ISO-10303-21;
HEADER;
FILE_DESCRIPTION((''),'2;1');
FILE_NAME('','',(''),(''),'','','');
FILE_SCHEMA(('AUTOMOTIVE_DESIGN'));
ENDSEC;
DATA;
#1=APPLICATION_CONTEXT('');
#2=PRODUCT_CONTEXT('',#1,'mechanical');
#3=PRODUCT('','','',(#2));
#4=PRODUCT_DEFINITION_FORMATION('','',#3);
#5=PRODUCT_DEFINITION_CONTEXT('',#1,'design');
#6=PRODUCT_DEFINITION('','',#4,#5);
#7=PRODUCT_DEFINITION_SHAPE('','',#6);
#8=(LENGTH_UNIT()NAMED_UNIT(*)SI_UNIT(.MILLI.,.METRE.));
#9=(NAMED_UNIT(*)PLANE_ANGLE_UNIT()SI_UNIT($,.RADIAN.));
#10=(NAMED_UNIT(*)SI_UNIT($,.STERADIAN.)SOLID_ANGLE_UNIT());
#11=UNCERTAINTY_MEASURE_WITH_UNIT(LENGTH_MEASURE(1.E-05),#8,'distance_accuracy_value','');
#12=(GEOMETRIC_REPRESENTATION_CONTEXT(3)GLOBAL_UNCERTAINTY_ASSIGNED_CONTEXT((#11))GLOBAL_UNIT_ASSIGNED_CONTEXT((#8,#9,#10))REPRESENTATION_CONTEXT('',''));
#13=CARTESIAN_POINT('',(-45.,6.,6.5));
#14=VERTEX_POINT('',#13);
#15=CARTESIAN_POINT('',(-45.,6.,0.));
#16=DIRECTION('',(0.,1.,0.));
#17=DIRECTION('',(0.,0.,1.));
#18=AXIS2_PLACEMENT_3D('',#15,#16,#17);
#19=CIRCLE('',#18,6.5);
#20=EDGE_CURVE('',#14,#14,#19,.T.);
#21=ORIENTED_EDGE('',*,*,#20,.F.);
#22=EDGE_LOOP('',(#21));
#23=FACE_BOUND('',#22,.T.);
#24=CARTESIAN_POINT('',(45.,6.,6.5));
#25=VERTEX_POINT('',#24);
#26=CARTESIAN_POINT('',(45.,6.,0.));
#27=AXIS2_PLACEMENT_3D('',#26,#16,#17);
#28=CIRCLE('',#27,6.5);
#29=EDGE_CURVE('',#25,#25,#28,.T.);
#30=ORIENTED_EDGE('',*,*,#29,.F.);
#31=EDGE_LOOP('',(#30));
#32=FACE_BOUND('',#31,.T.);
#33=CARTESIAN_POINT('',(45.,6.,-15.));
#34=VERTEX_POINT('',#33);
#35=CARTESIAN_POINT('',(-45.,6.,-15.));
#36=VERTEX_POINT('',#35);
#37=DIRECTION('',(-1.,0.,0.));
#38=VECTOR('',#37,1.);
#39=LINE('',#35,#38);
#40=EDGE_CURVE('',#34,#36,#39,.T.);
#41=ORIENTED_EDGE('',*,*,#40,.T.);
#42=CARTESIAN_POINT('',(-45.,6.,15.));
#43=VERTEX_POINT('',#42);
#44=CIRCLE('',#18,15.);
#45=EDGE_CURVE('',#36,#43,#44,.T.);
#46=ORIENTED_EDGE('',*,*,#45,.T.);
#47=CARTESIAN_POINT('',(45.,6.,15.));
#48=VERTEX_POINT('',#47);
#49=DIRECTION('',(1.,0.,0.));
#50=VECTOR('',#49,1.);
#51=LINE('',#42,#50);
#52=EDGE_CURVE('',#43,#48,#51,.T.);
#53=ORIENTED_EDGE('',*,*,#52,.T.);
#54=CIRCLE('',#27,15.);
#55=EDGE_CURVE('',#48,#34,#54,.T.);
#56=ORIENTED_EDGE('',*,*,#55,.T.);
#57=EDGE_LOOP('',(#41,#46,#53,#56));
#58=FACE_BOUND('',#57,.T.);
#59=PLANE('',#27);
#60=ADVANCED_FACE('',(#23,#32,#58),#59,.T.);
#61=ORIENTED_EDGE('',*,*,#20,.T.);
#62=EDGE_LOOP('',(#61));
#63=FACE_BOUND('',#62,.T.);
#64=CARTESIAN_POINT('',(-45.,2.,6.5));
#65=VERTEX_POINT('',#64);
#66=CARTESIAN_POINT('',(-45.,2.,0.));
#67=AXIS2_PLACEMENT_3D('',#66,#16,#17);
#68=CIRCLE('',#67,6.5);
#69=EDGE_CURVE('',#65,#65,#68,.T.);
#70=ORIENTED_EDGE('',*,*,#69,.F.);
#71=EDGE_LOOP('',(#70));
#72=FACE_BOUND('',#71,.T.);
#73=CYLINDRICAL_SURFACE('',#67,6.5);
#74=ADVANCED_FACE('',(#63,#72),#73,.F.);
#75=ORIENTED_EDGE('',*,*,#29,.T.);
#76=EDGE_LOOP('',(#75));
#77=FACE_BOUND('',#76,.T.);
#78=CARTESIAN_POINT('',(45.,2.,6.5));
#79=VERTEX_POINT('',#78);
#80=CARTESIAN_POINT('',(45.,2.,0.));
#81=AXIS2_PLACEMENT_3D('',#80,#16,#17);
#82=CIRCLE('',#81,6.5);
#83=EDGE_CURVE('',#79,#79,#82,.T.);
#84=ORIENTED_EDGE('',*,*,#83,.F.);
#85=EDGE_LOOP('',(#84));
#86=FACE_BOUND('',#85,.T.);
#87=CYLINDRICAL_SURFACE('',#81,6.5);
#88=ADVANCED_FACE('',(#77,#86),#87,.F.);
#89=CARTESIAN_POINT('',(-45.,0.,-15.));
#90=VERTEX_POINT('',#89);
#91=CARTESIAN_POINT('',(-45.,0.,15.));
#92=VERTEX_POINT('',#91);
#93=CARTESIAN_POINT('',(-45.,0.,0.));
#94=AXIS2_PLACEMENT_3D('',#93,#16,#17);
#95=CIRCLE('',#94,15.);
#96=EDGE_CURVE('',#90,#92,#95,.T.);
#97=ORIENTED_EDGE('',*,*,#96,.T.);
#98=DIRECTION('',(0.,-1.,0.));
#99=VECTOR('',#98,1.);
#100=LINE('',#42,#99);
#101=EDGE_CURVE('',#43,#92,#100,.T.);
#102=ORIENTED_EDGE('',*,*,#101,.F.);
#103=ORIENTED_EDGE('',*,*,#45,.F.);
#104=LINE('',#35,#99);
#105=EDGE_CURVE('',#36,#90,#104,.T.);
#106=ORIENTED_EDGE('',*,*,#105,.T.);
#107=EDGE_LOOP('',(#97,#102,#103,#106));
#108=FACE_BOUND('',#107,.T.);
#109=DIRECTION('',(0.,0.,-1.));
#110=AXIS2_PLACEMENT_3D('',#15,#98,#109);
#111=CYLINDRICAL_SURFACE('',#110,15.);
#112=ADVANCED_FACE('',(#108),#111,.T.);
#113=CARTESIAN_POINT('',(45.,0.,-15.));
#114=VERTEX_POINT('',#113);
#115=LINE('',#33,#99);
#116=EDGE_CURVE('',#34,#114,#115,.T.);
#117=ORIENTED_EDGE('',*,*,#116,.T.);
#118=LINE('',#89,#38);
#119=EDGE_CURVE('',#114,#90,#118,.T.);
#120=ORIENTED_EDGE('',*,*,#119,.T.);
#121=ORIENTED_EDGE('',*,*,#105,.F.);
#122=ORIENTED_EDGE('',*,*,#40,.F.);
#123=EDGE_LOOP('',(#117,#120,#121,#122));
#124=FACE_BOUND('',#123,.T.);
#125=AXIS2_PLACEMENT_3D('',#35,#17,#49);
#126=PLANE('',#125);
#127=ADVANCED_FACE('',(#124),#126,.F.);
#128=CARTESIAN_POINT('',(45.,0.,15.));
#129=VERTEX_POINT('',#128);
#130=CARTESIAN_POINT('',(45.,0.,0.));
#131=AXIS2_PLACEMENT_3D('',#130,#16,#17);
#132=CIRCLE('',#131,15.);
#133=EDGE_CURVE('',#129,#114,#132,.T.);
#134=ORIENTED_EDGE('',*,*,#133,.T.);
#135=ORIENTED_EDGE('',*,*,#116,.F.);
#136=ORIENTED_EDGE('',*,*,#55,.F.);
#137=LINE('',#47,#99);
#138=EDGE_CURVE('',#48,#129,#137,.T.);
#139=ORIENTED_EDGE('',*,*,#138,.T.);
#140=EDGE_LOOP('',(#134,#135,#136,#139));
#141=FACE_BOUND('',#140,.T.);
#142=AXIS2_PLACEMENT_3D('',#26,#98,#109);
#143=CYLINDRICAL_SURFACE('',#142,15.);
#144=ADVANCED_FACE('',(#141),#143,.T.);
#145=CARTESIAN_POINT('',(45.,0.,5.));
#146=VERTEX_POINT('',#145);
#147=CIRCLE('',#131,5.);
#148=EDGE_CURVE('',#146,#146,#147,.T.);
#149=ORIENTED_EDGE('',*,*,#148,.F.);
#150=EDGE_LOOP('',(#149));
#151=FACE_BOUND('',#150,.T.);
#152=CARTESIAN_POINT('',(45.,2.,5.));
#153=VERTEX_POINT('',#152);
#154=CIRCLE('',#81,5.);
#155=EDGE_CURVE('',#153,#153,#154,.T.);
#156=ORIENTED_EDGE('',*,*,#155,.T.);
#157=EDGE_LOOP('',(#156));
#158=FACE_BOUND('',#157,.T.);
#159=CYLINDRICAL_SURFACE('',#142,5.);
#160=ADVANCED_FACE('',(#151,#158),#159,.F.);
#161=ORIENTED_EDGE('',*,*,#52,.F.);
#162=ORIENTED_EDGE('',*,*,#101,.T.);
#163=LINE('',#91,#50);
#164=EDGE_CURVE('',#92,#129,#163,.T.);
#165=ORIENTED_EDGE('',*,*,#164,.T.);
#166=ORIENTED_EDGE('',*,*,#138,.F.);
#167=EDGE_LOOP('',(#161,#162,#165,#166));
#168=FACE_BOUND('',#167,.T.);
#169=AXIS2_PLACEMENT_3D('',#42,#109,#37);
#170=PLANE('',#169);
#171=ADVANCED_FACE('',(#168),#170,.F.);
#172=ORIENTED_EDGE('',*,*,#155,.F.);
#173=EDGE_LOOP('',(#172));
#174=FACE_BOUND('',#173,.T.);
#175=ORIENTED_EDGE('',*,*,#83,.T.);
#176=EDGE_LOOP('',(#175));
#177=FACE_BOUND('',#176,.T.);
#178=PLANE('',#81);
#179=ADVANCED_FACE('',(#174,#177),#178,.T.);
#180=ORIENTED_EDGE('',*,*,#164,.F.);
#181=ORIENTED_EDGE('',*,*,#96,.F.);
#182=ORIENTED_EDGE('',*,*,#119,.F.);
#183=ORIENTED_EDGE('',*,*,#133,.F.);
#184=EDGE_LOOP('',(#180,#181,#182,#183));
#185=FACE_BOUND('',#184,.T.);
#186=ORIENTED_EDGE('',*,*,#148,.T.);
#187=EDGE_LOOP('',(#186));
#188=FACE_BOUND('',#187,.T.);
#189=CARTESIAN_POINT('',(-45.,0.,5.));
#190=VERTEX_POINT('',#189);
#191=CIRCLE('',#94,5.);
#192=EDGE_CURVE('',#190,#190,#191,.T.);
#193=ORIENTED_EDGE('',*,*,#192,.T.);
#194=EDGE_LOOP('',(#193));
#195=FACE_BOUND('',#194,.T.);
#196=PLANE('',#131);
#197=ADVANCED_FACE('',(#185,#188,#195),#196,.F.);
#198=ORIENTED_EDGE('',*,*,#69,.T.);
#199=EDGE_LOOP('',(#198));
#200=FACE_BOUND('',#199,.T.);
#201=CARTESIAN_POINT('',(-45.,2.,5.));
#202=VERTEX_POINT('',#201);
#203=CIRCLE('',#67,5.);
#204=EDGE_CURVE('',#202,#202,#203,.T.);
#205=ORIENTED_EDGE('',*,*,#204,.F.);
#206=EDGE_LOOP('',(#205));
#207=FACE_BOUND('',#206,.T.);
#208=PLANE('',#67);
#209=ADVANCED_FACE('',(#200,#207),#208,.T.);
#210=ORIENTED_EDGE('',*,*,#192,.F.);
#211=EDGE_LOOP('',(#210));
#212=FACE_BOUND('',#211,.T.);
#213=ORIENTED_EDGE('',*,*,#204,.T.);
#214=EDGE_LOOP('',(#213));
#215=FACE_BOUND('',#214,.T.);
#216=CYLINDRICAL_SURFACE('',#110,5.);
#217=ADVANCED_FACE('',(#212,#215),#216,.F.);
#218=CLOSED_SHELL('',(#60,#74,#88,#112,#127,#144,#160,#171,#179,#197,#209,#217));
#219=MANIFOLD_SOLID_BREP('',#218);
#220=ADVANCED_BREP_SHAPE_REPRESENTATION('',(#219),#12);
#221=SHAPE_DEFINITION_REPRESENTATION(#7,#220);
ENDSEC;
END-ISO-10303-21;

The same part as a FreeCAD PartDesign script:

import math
import FreeCAD as App
import Part
import Sketcher

V = App.Vector

doc = App.newDocument("Part")
body = doc.addObject("PartDesign::Body", "Body")

sketch1 = body.newObject("Sketcher::SketchObject", "Sketch")
sketch1.AttachmentSupport = (doc.getObject("XZ_Plane"), [""])
sketch1.MapMode = "FlatFace"
sketch1.addGeometry([
    Part.LineSegment(V(45, -15, 0), V(-45, -15, 0)),
    Part.ArcOfCircle(Part.Circle(V(-45, 0, 0), V(0, 0, 1), 15), math.radians(90), math.radians(270)),
    Part.LineSegment(V(-45, 15, 0), V(45, 15, 0)),
    Part.ArcOfCircle(Part.Circle(V(45, 0, 0), V(0, 0, 1), 15), math.radians(-90), math.radians(90)),
    Part.Circle(V(45, 0, 0), V(0, 0, 1), 5),
    Part.Circle(V(-45, 0, 0), V(0, 0, 1), 5),
], False)
sketch1.addConstraint([
    Sketcher.Constraint("Tangent", 0, 2, 1, 2),
    Sketcher.Constraint("Tangent", 1, 1, 2, 1),
    Sketcher.Constraint("Tangent", 2, 2, 3, 2),
    Sketcher.Constraint("Tangent", 3, 1, 0, 1),
    Sketcher.Constraint("Horizontal", 0),
    Sketcher.Constraint("Horizontal", 2),
    Sketcher.Constraint("Coincident", 4, 3, 3, 3),
    Sketcher.Constraint("Coincident", 5, 3, 1, 3),
    Sketcher.Constraint("Equal", 4, 5),
    Sketcher.Constraint("Symmetric", 1, 3, 3, 3, -1, 1),
    Sketcher.Constraint("Diameter", 4, 10.0),
    Sketcher.Constraint("Radius", 1, 15.0),
    Sketcher.Constraint("DistanceX", 0, 2, 0, 1, 90.0),
])
pad1 = body.newObject("PartDesign::Pad", "Pad")
pad1.Profile = sketch1
pad1.Length = 6
pad1.Reversed = True

sketch2 = body.newObject("Sketcher::SketchObject", "Sketch001")
sketch2.AttachmentSupport = (doc.getObject("XZ_Plane"), [""])
sketch2.MapMode = "FlatFace"
sketch2.AttachmentOffset = App.Placement(V(0, 0, -6), App.Rotation())
sketch2.addGeometry([
    Part.Circle(V(-45, 0, 0), V(0, 0, 1), 6),
    Part.Circle(V(45, 0, 0), V(0, 0, 1), 6),
], False)
sketch2.addConstraint([
    Sketcher.Constraint("Equal", 0, 1),
    Sketcher.Constraint("Symmetric", 0, 3, 1, 3, -1, 1),
    Sketcher.Constraint("PointOnObject", 0, 3, -1),
    Sketcher.Constraint("Diameter", 0, 13.0),
    Sketcher.Constraint("DistanceX", 0, 3, -1, 1, 45.0),
])
pocket1 = body.newObject("PartDesign::Pocket", "Pocket")
pocket1.Profile = sketch2
pocket1.Length = 4
pocket1.Reversed = True

doc.recompute()
